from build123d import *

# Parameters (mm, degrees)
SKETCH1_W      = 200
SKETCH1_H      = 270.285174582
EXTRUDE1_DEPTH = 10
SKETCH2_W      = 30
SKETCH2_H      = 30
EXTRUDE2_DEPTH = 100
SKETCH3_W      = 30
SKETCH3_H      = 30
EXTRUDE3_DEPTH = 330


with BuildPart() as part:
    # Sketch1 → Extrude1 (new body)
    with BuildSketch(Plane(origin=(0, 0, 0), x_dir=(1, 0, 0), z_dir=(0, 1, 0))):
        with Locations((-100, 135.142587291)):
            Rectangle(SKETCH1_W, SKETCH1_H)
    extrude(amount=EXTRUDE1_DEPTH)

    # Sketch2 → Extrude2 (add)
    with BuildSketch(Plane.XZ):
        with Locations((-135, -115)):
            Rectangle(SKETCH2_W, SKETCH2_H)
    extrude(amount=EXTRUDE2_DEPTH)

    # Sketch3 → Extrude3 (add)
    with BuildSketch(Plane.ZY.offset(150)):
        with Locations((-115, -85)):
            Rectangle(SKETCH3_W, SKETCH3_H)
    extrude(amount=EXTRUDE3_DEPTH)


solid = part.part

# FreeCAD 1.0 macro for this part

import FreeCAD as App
import Part
import Sketcher
from FreeCAD import Vector


def add_polygon(sketch, points):
    """Adds a closed chain of lines whose ends are joined by coincident constraints."""
    first, n = sketch.GeometryCount, len(points)
    for a, b in zip(points, points[1:] + points[:1]):
        sketch.addGeometry(Part.LineSegment(App.Vector(*a, 0), App.Vector(*b, 0)), False)
    for i in range(n):
        sketch.addConstraint(Sketcher.Constraint("Coincident", first + i, 2, first + (i + 1) % n, 1))

doc = App.newDocument("Part")
params = doc.addObject("Spreadsheet::Sheet", "Params")
for row, (alias, value) in enumerate([
    ("sketch1_width", "200 mm"),
    ("pad1_length", "10 mm"),
    ("sketch2_width", "30 mm"),
    ("pad2_length", "100 mm"),
    ("sketch3_width", "30 mm"),
    ("pad3_length", "330 mm"),
], start=1):
    params.set(f"A{row}", alias)
    params.set(f"B{row}", "=" + value)
    params.setAlias(f"B{row}", alias)

body = doc.addObject("PartDesign::Body", "Body")

# Sketch on XZ plane
sketch1 = doc.addObject("Sketcher::SketchObject", "Sketch")
body.addObject(sketch1)
sketch1.AttachmentSupport = (doc.XZ_Plane, [""])
sketch1.MapMode = "FlatFace"
add_polygon(sketch1, [(-200, -270.285175), (-200, 0), (0, 0), (0, -270.285175)])  # lines 0-3
sketch1.addConstraint([
    Sketcher.Constraint("Vertical", 0),
    Sketcher.Constraint("Horizontal", 1),
    Sketcher.Constraint("Vertical", 2),
    Sketcher.Constraint("Horizontal", 3),
    Sketcher.Constraint("Coincident", 1, 2, -1, 1),
    Sketcher.Constraint("DistanceX", 1, 1, 1, 2, 200.0),
    Sketcher.Constraint("DistanceY", 0, 1, 0, 2, 270.285175),
])
sketch1.setExpression("Constraints[9]", "Params.sketch1_width")
pad1 = doc.addObject("PartDesign::Pad", "Pad")
body.addObject(pad1)
pad1.Profile = sketch1
pad1.setExpression("Length", "Params.pad1_length")
pad1.Reversed = True

# Sketch on XZ plane
sketch2 = doc.addObject("Sketcher::SketchObject", "Sketch001")
body.addObject(sketch2)
sketch2.AttachmentSupport = (doc.XZ_Plane, [""])
sketch2.MapMode = "FlatFace"
add_polygon(sketch2, [(-150, -100), (-150, -130), (-120, -130), (-120, -100)])  # lines 0-3
sketch2.addConstraint([
    Sketcher.Constraint("Vertical", 0),
    Sketcher.Constraint("Horizontal", 1),
    Sketcher.Constraint("Vertical", 2),
    Sketcher.Constraint("Horizontal", 3),
    Sketcher.Constraint("Equal", 3, 0),
    Sketcher.Constraint("DistanceX", 1, 1, 1, 2, 30.0),
    Sketcher.Constraint("DistanceX", 0, 2, -1, 1, 150.0),
    Sketcher.Constraint("DistanceY", 0, 2, -1, 1, 130.0),
])
sketch2.setExpression("Constraints[9]", "Params.sketch2_width")
pad2 = doc.addObject("PartDesign::Pad", "Pad001")
body.addObject(pad2)
pad2.Profile = sketch2
pad2.setExpression("Length", "Params.pad2_length")

# Sketch on YZ plane
sketch3 = doc.addObject("Sketcher::SketchObject", "Sketch002")
body.addObject(sketch3)
sketch3.AttachmentSupport = (doc.YZ_Plane, [""])
sketch3.MapMode = "FlatFace"
sketch3.AttachmentOffset = App.Placement(Vector(0, 0, -150), App.Rotation())
add_polygon(sketch3, [(-70, -130), (-100, -130), (-100, -100), (-70, -100)])  # lines 0-3
sketch3.addConstraint([
    Sketcher.Constraint("Horizontal", 0),
    Sketcher.Constraint("Vertical", 1),
    Sketcher.Constraint("Horizontal", 2),
    Sketcher.Constraint("Vertical", 3),
    Sketcher.Constraint("Equal", 2, 1),
    Sketcher.Constraint("DistanceX", 0, 2, 0, 1, 30.0),
    Sketcher.Constraint("DistanceX", 0, 2, -1, 1, 100.0),
    Sketcher.Constraint("DistanceY", 0, 2, -1, 1, 130.0),
])
sketch3.setExpression("Constraints[9]", "Params.sketch3_width")
pad3 = doc.addObject("PartDesign::Pad", "Pad002")
body.addObject(pad3)
pad3.Profile = sketch3
pad3.setExpression("Length", "Params.pad3_length")
pad3.Reversed = True

doc.recompute()
